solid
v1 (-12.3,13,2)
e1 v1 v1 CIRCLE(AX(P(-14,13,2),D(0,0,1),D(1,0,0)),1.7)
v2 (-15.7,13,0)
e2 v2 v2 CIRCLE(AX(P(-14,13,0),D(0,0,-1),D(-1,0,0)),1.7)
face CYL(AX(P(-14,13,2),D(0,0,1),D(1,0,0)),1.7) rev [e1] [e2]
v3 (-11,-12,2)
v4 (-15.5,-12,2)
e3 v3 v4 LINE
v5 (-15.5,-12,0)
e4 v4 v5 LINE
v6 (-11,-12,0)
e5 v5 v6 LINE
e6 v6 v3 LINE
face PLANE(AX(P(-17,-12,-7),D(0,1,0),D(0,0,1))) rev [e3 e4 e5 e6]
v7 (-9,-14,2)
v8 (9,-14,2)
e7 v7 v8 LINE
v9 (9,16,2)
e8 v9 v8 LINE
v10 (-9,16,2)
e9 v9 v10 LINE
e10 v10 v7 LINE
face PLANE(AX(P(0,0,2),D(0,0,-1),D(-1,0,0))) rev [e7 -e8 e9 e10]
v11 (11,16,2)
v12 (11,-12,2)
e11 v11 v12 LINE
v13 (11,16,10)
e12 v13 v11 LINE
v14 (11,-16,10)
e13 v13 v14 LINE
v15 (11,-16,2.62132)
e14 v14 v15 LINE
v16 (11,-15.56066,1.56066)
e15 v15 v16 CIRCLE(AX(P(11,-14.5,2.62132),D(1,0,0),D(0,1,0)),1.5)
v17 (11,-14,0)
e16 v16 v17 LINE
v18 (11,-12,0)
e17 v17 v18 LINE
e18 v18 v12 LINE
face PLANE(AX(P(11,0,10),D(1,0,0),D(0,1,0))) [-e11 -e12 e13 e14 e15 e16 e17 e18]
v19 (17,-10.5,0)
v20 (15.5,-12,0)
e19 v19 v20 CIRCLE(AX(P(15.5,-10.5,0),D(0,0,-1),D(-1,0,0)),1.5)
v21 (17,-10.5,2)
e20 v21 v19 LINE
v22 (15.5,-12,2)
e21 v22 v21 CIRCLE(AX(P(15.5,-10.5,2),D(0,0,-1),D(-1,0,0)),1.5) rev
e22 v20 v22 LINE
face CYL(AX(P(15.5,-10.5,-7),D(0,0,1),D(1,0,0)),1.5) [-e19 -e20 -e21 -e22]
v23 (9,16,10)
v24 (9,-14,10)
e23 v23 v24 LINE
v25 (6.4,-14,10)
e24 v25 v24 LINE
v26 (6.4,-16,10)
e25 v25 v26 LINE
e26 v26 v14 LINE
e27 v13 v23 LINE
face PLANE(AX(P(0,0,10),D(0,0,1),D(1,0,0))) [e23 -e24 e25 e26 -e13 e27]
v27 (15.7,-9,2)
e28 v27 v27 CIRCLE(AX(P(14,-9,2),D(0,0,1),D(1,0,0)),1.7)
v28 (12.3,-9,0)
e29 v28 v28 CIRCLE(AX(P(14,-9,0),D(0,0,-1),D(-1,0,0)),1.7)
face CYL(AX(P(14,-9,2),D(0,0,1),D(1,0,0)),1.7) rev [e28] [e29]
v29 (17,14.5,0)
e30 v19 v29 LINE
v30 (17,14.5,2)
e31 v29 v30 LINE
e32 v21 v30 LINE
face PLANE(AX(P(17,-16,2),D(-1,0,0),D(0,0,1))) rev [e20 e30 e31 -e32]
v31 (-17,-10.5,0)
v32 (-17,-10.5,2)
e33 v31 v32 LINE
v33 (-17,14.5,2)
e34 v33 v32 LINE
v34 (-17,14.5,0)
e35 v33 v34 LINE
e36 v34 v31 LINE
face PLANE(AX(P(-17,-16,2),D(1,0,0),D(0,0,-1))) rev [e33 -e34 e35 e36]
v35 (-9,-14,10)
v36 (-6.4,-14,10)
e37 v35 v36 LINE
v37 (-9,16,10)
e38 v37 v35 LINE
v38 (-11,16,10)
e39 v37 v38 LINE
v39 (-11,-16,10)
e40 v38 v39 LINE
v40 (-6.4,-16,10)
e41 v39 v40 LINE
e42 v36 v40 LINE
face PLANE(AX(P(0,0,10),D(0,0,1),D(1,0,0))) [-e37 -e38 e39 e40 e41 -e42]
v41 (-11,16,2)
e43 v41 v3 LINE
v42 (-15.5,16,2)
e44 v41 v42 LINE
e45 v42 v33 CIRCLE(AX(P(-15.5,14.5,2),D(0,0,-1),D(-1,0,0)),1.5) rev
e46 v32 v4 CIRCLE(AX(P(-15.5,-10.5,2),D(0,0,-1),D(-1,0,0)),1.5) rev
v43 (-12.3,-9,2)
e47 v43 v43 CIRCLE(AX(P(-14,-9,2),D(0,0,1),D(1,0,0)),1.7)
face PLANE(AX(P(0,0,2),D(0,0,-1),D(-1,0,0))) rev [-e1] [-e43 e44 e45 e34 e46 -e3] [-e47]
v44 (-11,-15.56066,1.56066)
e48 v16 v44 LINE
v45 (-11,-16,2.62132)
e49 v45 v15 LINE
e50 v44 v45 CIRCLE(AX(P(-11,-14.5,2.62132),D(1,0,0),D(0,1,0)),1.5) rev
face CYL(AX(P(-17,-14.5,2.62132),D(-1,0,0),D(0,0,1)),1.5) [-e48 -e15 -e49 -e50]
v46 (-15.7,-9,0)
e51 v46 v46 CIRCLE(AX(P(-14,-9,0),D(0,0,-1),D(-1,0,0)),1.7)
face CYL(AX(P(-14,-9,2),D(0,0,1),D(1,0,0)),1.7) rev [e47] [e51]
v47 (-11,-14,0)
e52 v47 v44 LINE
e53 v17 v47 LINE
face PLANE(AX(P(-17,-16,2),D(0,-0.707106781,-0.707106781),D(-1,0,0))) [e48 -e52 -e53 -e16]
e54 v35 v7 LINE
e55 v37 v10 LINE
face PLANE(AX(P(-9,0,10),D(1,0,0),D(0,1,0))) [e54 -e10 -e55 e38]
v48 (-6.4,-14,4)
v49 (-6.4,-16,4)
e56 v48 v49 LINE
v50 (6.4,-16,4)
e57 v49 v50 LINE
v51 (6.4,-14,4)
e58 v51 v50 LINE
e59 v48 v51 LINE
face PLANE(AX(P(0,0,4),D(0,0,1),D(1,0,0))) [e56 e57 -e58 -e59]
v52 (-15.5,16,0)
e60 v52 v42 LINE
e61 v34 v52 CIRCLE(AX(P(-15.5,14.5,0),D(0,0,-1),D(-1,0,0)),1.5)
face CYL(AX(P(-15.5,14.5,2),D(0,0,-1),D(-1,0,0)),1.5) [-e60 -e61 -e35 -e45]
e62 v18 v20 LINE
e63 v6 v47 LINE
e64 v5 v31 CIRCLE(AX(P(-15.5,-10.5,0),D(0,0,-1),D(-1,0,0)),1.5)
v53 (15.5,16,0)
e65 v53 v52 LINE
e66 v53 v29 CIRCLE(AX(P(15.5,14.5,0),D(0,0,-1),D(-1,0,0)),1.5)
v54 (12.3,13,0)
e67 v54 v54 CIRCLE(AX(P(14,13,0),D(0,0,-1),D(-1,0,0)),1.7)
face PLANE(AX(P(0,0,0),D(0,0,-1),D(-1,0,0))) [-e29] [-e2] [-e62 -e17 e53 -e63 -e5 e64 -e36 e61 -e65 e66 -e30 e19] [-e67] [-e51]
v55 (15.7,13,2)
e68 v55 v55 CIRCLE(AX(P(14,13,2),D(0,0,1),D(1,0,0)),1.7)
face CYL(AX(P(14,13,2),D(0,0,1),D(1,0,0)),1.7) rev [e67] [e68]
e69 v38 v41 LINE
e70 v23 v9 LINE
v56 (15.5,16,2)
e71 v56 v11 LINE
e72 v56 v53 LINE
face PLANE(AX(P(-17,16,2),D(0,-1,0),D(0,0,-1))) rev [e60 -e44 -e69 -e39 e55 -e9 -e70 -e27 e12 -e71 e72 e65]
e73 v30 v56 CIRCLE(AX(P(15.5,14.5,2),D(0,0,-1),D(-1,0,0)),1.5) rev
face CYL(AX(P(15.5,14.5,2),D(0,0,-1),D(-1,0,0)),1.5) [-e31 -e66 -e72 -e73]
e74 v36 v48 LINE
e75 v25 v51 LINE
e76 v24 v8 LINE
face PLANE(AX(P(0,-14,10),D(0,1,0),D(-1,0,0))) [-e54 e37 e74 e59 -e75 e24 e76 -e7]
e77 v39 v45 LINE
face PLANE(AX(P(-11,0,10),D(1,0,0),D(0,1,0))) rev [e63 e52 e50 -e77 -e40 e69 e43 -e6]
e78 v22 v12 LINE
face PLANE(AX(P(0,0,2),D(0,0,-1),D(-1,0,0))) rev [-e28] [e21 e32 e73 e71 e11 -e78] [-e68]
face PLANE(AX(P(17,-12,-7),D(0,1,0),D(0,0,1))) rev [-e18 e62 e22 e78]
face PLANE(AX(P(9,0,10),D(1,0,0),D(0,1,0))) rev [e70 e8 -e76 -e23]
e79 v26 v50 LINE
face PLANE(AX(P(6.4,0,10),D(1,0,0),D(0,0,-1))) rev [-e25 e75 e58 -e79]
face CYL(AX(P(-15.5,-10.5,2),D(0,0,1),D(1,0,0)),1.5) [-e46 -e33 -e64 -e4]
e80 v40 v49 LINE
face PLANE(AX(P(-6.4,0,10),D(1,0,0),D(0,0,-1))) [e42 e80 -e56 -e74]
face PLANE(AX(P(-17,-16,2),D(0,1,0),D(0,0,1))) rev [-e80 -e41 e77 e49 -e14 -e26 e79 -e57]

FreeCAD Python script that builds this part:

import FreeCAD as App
import Part
import Sketcher


def edges_at(feature, points):
    """Names of the edges that pass closest to the given points."""
    edges = feature.Shape.Edges
    near = lambda p: min(range(len(edges)), key=lambda i: edges[i].distToShape(Part.Vertex(*p))[0])
    return sorted({f"Edge{near(p) + 1}" for p in points})

doc = App.newDocument("Part")
params = doc.addObject("Spreadsheet::Sheet", "Params")
for row, (alias, value) in enumerate([
    ("sketch1_width", "34 mm"),
    ("sketch1_height", "32 mm"),
    ("pad1_length", "2 mm"),
    ("sketch2_width", "2 mm"),
    ("sketch2_height", "30 mm"),
    ("sketch2_width2", "2.6 mm"),
    ("pad2_length", "8 mm"),
    ("sketch3_height", "2 mm"),
    ("sketch3_width", "12.8 mm"),
    ("pad3_length", "2 mm"),
    ("sketch4_width", "6 mm"),
    ("sketch4_height", "4 mm"),
    ("pocket1_length", "9 mm"),
    ("sketch5_diameter", "3.4 mm"),
    ("hole_diameter", "3.4 mm"),
    ("hole_depth", "10 mm"),
    ("fillet_radius", "1.5 mm"),
    ("chamfer_size", "2 mm"),
    ("fillet2_radius", "1.5 mm"),
], start=1):
    params.set(f"A{row}", alias)
    params.set(f"B{row}", "=" + value)
    params.setAlias(f"B{row}", alias)

body = doc.addObject("PartDesign::Body", "Body")

# Sketch on XY plane
sketch1 = body.newObject("Sketcher::SketchObject", "Sketch")
sketch1.AttachmentSupport = (doc.getObject("XY_Plane"), [""])
sketch1.MapMode = "FlatFace"
sketch1.addGeometry([
    Part.LineSegment(App.Vector(-17, 16, 0), App.Vector(-17, -16, 0)),
    Part.LineSegment(App.Vector(-17, -16, 0), App.Vector(17, -16, 0)),
    Part.LineSegment(App.Vector(17, -16, 0), App.Vector(17, 16, 0)),
    Part.LineSegment(App.Vector(17, 16, 0), App.Vector(-17, 16, 0)),
], False)
sketch1.addConstraint([
    Sketcher.Constraint("Coincident", 0, 2, 1, 1),
    Sketcher.Constraint("Coincident", 1, 2, 2, 1),
    Sketcher.Constraint("Coincident", 2, 2, 3, 1),
    Sketcher.Constraint("Coincident", 3, 2, 0, 1),
    Sketcher.Constraint("Vertical", 0),
    Sketcher.Constraint("Horizontal", 1),
    Sketcher.Constraint("Vertical", 2),
    Sketcher.Constraint("Horizontal", 3),
    Sketcher.Constraint("Symmetric", 0, 2, 2, 2, -1, 1),
    Sketcher.Constraint("DistanceX", 1, 1, 1, 2, 34.0),
    Sketcher.Constraint("DistanceY", 0, 2, 0, 1, 32.0),
])
sketch1.setExpression("Constraints[9]", "Params.sketch1_width")
sketch1.setExpression("Constraints[10]", "Params.sketch1_height")
pad1 = body.newObject("PartDesign::Pad", "Pad")
pad1.Profile = sketch1
pad1.setExpression("Length", "Params.pad1_length")

# Sketch on XY plane
sketch2 = body.newObject("Sketcher::SketchObject", "Sketch001")
sketch2.AttachmentSupport = (doc.getObject("XY_Plane"), [""])
sketch2.MapMode = "FlatFace"
sketch2.AttachmentOffset = App.Placement(App.Vector(0, 0, 2), App.Rotation())
sketch2.addGeometry([
    Part.LineSegment(App.Vector(11, 16, 0), App.Vector(9, 16, 0)),  # 0
    Part.LineSegment(App.Vector(9, 16, 0), App.Vector(9, -14, 0)),  # 1
    Part.LineSegment(App.Vector(9, -14, 0), App.Vector(6.4, -14, 0)),  # 2
    Part.LineSegment(App.Vector(6.4, -14, 0), App.Vector(6.4, -16, 0)),  # 3
    Part.LineSegment(App.Vector(6.4, -16, 0), App.Vector(11, -16, 0)),  # 4
    Part.LineSegment(App.Vector(11, -16, 0), App.Vector(11, 16, 0)),  # 5
    Part.LineSegment(App.Vector(-9, 16, 0), App.Vector(-11, 16, 0)),  # 6
    Part.LineSegment(App.Vector(-11, 16, 0), App.Vector(-11, -16, 0)),  # 7
    Part.LineSegment(App.Vector(-11, -16, 0), App.Vector(-6.4, -16, 0)),  # 8
    Part.LineSegment(App.Vector(-6.4, -16, 0), App.Vector(-6.4, -14, 0)),  # 9
    Part.LineSegment(App.Vector(-6.4, -14, 0), App.Vector(-9, -14, 0)),  # 10
    Part.LineSegment(App.Vector(-9, -14, 0), App.Vector(-9, 16, 0)),  # 11
], False)
sketch2.addConstraint([
    Sketcher.Constraint("Coincident", 0, 2, 1, 1),
    Sketcher.Constraint("Coincident", 1, 2, 2, 1),
    Sketcher.Constraint("Coincident", 2, 2, 3, 1),
    Sketcher.Constraint("Coincident", 3, 2, 4, 1),
    Sketcher.Constraint("Coincident", 4, 2, 5, 1),
    Sketcher.Constraint("Coincident", 5, 2, 0, 1),
    Sketcher.Constraint("Coincident", 6, 2, 7, 1),
    Sketcher.Constraint("Coincident", 7, 2, 8, 1),
    Sketcher.Constraint("Coincident", 8, 2, 9, 1),
    Sketcher.Constraint("Coincident", 9, 2, 10, 1),
    Sketcher.Constraint("Coincident", 10, 2, 11, 1),
    Sketcher.Constraint("Coincident", 11, 2, 6, 1),
    Sketcher.Constraint("Horizontal", 0),
    Sketcher.Constraint("Vertical", 1),
    Sketcher.Constraint("Horizontal", 2),
    Sketcher.Constraint("Vertical", 3),
    Sketcher.Constraint("Horizontal", 4),
    Sketcher.Constraint("Vertical", 5),
    Sketcher.Constraint("Horizontal", 6),
    Sketcher.Constraint("Vertical", 7),
    Sketcher.Constraint("Horizontal", 8),
    Sketcher.Constraint("Vertical", 9),
    Sketcher.Constraint("Horizontal", 10),
    Sketcher.Constraint("Vertical", 11),
    Sketcher.Constraint("Symmetric", 4, 2, 6, 2, -1, 1),
    Sketcher.Constraint("Symmetric", 3, 2, 8, 2, -2),
    Sketcher.Constraint("Symmetric", 1, 2, 10, 2, -2),
    Sketcher.Constraint("Horizontal", 5, 2, 6, 2),
    Sketcher.Constraint("Equal", 6, 3),
    Sketcher.Constraint("DistanceX", 0, 2, 0, 1, 2.0),
    Sketcher.Constraint("DistanceY", 1, 2, 1, 1, 30.0),
    Sketcher.Constraint("DistanceX", 2, 2, 2, 1, 2.6),
    Sketcher.Constraint("DistanceX", -1, 1, 0, 2, 9.0),
])
sketch2.setExpression("Constraints[29]", "Params.sketch2_width")
sketch2.setExpression("Constraints[30]", "Params.sketch2_height")
sketch2.setExpression("Constraints[31]", "Params.sketch2_width2")
pad2 = body.newObject("PartDesign::Pad", "Pad001")
pad2.Profile = sketch2
pad2.setExpression("Length", "Params.pad2_length")

# Sketch on XY plane
sketch3 = body.newObject("Sketcher::SketchObject", "Sketch002")
sketch3.AttachmentSupport = (doc.getObject("XY_Plane"), [""])
sketch3.MapMode = "FlatFace"
sketch3.AttachmentOffset = App.Placement(App.Vector(0, 0, 2), App.Rotation())
sketch3.addGeometry([
    Part.LineSegment(App.Vector(-6.4, -14, 0), App.Vector(-6.4, -16, 0)),
    Part.LineSegment(App.Vector(-6.4, -16, 0), App.Vector(6.4, -16, 0)),
    Part.LineSegment(App.Vector(6.4, -16, 0), App.Vector(6.4, -14, 0)),
    Part.LineSegment(App.Vector(6.4, -14, 0), App.Vector(-6.4, -14, 0)),
], False)
sketch3.addConstraint([
    Sketcher.Constraint("Coincident", 0, 2, 1, 1),
    Sketcher.Constraint("Coincident", 1, 2, 2, 1),
    Sketcher.Constraint("Coincident", 2, 2, 3, 1),
    Sketcher.Constraint("Coincident", 3, 2, 0, 1),
    Sketcher.Constraint("Vertical", 0),
    Sketcher.Constraint("Horizontal", 1),
    Sketcher.Constraint("Vertical", 2),
    Sketcher.Constraint("Horizontal", 3),
    Sketcher.Constraint("DistanceY", 0, 2, 0, 1, 2.0),
    Sketcher.Constraint("DistanceX", 1, 1, 1, 2, 12.8),
    Sketcher.Constraint("DistanceY", 0, 2, -1, 1, 16.0),
    Sketcher.Constraint("DistanceX", 0, 2, -1, 1, 6.4),
])
sketch3.setExpression("Constraints[8]", "Params.sketch3_height")
sketch3.setExpression("Constraints[9]", "Params.sketch3_width")
pad3 = body.newObject("PartDesign::Pad", "Pad002")
pad3.Profile = sketch3
pad3.setExpression("Length", "Params.pad3_length")

# Sketch on XY plane
sketch4 = body.newObject("Sketcher::SketchObject", "Sketch003")
sketch4.AttachmentSupport = (doc.getObject("XY_Plane"), [""])
sketch4.MapMode = "FlatFace"
sketch4.AttachmentOffset = App.Placement(App.Vector(0, 0, 2), App.Rotation())
sketch4.addGeometry([
    Part.LineSegment(App.Vector(-17, -12, 0), App.Vector(-17, -16, 0)),  # 0
    Part.LineSegment(App.Vector(-17, -16, 0), App.Vector(-11, -16, 0)),  # 1
    Part.LineSegment(App.Vector(-11, -16, 0), App.Vector(-11, -12, 0)),  # 2
    Part.LineSegment(App.Vector(-11, -12, 0), App.Vector(-17, -12, 0)),  # 3
    Part.LineSegment(App.Vector(11, -12, 0), App.Vector(11, -16, 0)),  # 4
    Part.LineSegment(App.Vector(11, -16, 0), App.Vector(17, -16, 0)),  # 5
    Part.LineSegment(App.Vector(17, -16, 0), App.Vector(17, -12, 0)),  # 6
    Part.LineSegment(App.Vector(17, -12, 0), App.Vector(11, -12, 0)),  # 7
], False)
sketch4.addConstraint([
    Sketcher.Constraint("Coincident", 0, 2, 1, 1),
    Sketcher.Constraint("Coincident", 1, 2, 2, 1),
    Sketcher.Constraint("Coincident", 2, 2, 3, 1),
    Sketcher.Constraint("Coincident", 3, 2, 0, 1),
    Sketcher.Constraint("Coincident", 4, 2, 5, 1),
    Sketcher.Constraint("Coincident", 5, 2, 6, 1),
    Sketcher.Constraint("Coincident", 6, 2, 7, 1),
    Sketcher.Constraint("Coincident", 7, 2, 4, 1),
    Sketcher.Constraint("Vertical", 0),
    Sketcher.Constraint("Horizontal", 1),
    Sketcher.Constraint("Vertical", 2),
    Sketcher.Constraint("Horizontal", 3),
    Sketcher.Constraint("Vertical", 4),
    Sketcher.Constraint("Horizontal", 5),
    Sketcher.Constraint("Vertical", 6),
    Sketcher.Constraint("Horizontal", 7),
    Sketcher.Constraint("Symmetric", 1, 2, 4, 2, -2),
    Sketcher.Constraint("Symmetric", 3, 2, 6, 2, -2),
    Sketcher.Constraint("DistanceX", 1, 1, 1, 2, 6.0),
    Sketcher.Constraint("DistanceY", 0, 2, 0, 1, 4.0),
    Sketcher.Constraint("DistanceX", 0, 2, -1, 1, 17.0),
    Sketcher.Constraint("DistanceY", 0, 2, -1, 1, 16.0),
])
sketch4.setExpression("Constraints[18]", "Params.sketch4_width")
sketch4.setExpression("Constraints[19]", "Params.sketch4_height")
pocket1 = body.newObject("PartDesign::Pocket", "Pocket")
pocket1.Profile = sketch4
pocket1.setExpression("Length", "Params.pocket1_length")

# Sketch on XY plane
sketch5 = body.newObject("Sketcher::SketchObject", "Sketch004")
sketch5.AttachmentSupport = (doc.getObject("XY_Plane"), [""])
sketch5.MapMode = "FlatFace"
sketch5.AttachmentOffset = App.Placement(App.Vector(0, 0, 2), App.Rotation())
sketch5.addGeometry([
    Part.Circle(App.Vector(-14, 13, 0), App.Vector(0, 0, 1), 1.7),
    Part.Circle(App.Vector(14, -9, 0), App.Vector(0, 0, 1), 1.7),
    Part.Circle(App.Vector(-14, -9, 0), App.Vector(0, 0, 1), 1.7),
    Part.Circle(App.Vector(14, 13, 0), App.Vector(0, 0, 1), 1.7),
], False)
sketch5.addConstraint([
    Sketcher.Constraint("Equal", 0, 1),
    Sketcher.Constraint("Equal", 1, 2),
    Sketcher.Constraint("Equal", 2, 3),
    Sketcher.Constraint("Symmetric", 1, 3, 2, 3, -2),
    Sketcher.Constraint("Symmetric", 0, 3, 3, 3, -2),
    Sketcher.Constraint("Vertical", 0, 3, 2, 3),
    Sketcher.Constraint("Diameter", 0, 3.4),
    Sketcher.Constraint("DistanceX", 0, 3, -1, 1, 14.0),
    Sketcher.Constraint("DistanceY", -1, 1, 0, 3, 13.0),
    Sketcher.Constraint("DistanceY", 1, 3, -1, 1, 9.0),
])
sketch5.setExpression("Constraints[6]", "Params.sketch5_diameter")
doc.recompute()
hole = body.newObject("PartDesign::Hole", "Hole")
hole.Profile = sketch5
hole.ThreadType = "None"
hole.setExpression("Diameter", "Params.hole_diameter")
hole.DepthType = "Dimension"
hole.setExpression("Depth", "Params.hole_depth")
hole.DrillPoint = "Angled"
hole.DrillPointAngle = 118
doc.recompute()

fillet = body.newObject("PartDesign::Fillet", "Fillet")
fillet.Base = (hole, edges_at(hole, [
    (-17, 16, 1),
    (17, 16, 1),
    (-17, -12, 1),
    (17, -12, 1),
]))
fillet.setExpression("Radius", "Params.fillet_radius")
doc.recompute()

chamfer = body.newObject("PartDesign::Chamfer", "Chamfer")
chamfer.Base = (fillet, edges_at(fillet, [(0, -16, 0)]))
chamfer.setExpression("Size", "Params.chamfer_size")
doc.recompute()

fillet2 = body.newObject("PartDesign::Fillet", "Fillet001")
fillet2.Base = (chamfer, edges_at(chamfer, [(0, -16, 2)]))
fillet2.setExpression("Radius", "Params.fillet2_radius")

doc.recompute()
